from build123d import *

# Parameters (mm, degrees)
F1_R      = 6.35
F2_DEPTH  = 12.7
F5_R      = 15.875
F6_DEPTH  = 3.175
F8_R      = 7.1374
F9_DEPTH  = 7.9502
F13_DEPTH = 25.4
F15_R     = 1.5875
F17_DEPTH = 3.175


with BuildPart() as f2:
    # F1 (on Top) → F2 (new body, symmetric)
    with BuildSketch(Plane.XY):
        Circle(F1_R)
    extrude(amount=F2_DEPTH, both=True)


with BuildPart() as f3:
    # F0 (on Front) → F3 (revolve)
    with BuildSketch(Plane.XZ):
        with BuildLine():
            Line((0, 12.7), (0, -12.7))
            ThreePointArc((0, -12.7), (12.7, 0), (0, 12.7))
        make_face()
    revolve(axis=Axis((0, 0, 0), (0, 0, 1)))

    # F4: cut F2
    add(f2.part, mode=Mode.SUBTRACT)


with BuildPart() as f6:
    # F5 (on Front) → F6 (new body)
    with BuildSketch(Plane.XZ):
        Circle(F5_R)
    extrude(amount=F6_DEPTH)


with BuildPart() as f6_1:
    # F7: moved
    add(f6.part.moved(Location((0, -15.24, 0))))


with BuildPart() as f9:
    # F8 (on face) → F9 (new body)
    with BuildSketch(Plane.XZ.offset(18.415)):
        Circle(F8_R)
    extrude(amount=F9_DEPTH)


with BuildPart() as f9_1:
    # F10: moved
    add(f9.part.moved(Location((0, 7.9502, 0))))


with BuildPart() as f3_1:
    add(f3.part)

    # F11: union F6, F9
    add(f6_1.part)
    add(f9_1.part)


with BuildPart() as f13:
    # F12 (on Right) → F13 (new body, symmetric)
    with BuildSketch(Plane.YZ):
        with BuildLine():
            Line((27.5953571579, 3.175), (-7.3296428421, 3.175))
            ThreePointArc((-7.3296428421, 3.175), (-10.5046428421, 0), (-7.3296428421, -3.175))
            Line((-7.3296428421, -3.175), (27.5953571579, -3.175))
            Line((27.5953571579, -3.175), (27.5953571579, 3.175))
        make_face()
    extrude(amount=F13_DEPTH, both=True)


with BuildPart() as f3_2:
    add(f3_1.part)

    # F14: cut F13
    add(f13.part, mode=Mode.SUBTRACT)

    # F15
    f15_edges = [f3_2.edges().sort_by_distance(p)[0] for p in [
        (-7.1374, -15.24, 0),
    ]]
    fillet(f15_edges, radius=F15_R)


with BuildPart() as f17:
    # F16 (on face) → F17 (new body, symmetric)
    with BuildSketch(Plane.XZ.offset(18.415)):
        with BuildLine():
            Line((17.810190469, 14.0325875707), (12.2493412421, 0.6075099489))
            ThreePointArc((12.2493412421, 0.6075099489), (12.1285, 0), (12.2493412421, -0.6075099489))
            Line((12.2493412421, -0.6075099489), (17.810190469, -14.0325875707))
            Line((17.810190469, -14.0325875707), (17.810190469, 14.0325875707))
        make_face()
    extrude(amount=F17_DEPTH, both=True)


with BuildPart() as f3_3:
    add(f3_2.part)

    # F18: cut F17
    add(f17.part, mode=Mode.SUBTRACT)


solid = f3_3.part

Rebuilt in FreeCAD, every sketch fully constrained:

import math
import FreeCAD as App
import Part
import Sketcher

V = App.Vector
Q = App.Units.Quantity


def edges_at(feature, points):
    """Names of the edges that pass closest to the given points."""
    edges = feature.Shape.Edges
    near = lambda p: min(range(len(edges)), key=lambda i: edges[i].distToShape(Part.Vertex(*p))[0])
    return sorted({f"Edge{near(p) + 1}" for p in points})

doc = App.newDocument("Part")
body = doc.addObject("PartDesign::Body", "Body")

# Sketch on XY plane
sketch1 = body.newObject("Sketcher::SketchObject", "Sketch")
sketch1.AttachmentSupport = (doc.getObject("XY_Plane"), [""])
sketch1.MapMode = "FlatFace"
sketch1.addGeometry(Part.Circle(V(0, 0, 0), V(0, 0, 1), 6), False)
sketch1.addConstraint([
    Sketcher.Constraint("Coincident", 0, 3, -1, 1),
    Sketcher.Constraint("Diameter", 0, Q("0.5 in")),
])
pad1 = body.newObject("PartDesign::Pad", "Pad")
pad1.Profile = sketch1
pad1.Length = Q("1 in")
pad1.Midplane = True
body2 = doc.addObject("PartDesign::Body", "Body001")

# Sketch on XZ plane
sketch2 = body2.newObject("Sketcher::SketchObject", "Sketch001")
sketch2.AttachmentSupport = (doc.getObject("XZ_Plane001"), [""])
sketch2.MapMode = "FlatFace"
sketch2.addGeometry([
    Part.LineSegment(V(0, 13, 0), V(0, -13, 0)),
    Part.ArcOfCircle(Part.Circle(V(0, 0, 0), V(0, 0, 1), 13), math.radians(-90), math.radians(90)),
], False)
sketch2.addConstraint([
    Sketcher.Constraint("Coincident", 0, 1, 1, 2),
    Sketcher.Constraint("Coincident", 1, 1, 0, 2),
    Sketcher.Constraint("Vertical", 0),
    Sketcher.Constraint("Coincident", 1, 3, -1, 1),
    Sketcher.Constraint("PointOnObject", 0, 1, -2),
    Sketcher.Constraint("Radius", 1, Q("0.5 in")),
])
revolution = body2.newObject("PartDesign::Revolution", "Revolution")
revolution.Profile = sketch2
revolution.ReferenceAxis = (sketch2, ["V_Axis"])
revolution.Angle = 360
doc.recompute()

boolean = body2.newObject("PartDesign::Boolean", "Boolean")
boolean.Type = "Cut"
boolean.addObjects([body])
body3 = doc.addObject("PartDesign::Body", "Body002")

# Sketch on XZ plane
sketch3 = body3.newObject("Sketcher::SketchObject", "Sketch002")
sketch3.AttachmentSupport = (doc.getObject("XZ_Plane002"), [""])
sketch3.MapMode = "FlatFace"
sketch3.addGeometry(Part.Circle(V(0, 0, 0), V(0, 0, 1), 16), False)
sketch3.addConstraint([
    Sketcher.Constraint("Coincident", 0, 3, -1, 1),
    Sketcher.Constraint("Diameter", 0, Q("1.25 in")),
])
pad2 = body3.newObject("PartDesign::Pad", "Pad001")
pad2.Profile = sketch3
pad2.Length = Q("0.125 in")
body4 = doc.addObject("PartDesign::Body", "Body003")
doc.recompute()

body3.Placement = App.Placement(V(0, -15.24, 0), App.Rotation(V(0, 0, 1), 0))
boolean2 = body4.newObject("PartDesign::Boolean", "Boolean001")
boolean2.Type = "Fuse"
boolean2.addObjects([body3])
body5 = doc.addObject("PartDesign::Body", "Body004")

# Sketch on XZ plane
sketch4 = body5.newObject("Sketcher::SketchObject", "Sketch003")
sketch4.AttachmentSupport = (doc.getObject("XZ_Plane004"), [""])
sketch4.MapMode = "FlatFace"
sketch4.AttachmentOffset = App.Placement(V(0, 0, 0.725 * 25.4), App.Rotation())
sketch4.addGeometry(Part.Circle(V(0, 0, 0), V(0, 0, 1), 7), False)
sketch4.addConstraint([
    Sketcher.Constraint("Coincident", 0, 3, -1, 1),
    Sketcher.Constraint("Diameter", 0, Q("0.562 in")),
])
pad3 = body5.newObject("PartDesign::Pad", "Pad002")
pad3.Profile = sketch4
pad3.Length = Q("0.313 in")
body6 = doc.addObject("PartDesign::Body", "Body005")
doc.recompute()

body5.Placement = App.Placement(V(0, 7.9502, 0), App.Rotation(V(0, 0, 1), 0))
boolean3 = body6.newObject("PartDesign::Boolean", "Boolean002")
boolean3.Type = "Fuse"
boolean3.addObjects([body5])
body2.AllowCompound = True
doc.recompute()

boolean4 = body2.newObject("PartDesign::Boolean", "Boolean003")
boolean4.Type = "Fuse"
boolean4.addObjects([body4])
doc.recompute()

boolean5 = body2.newObject("PartDesign::Boolean", "Boolean004")
boolean5.Type = "Fuse"
boolean5.addObjects([body6])
body7 = doc.addObject("PartDesign::Body", "Body006")

# Sketch on YZ plane
sketch5 = body7.newObject("Sketcher::SketchObject", "Sketch004")
sketch5.AttachmentSupport = (doc.getObject("YZ_Plane006"), [""])
sketch5.MapMode = "FlatFace"
sketch5.addGeometry([
    Part.LineSegment(V(27.6, 3.2, 0), V(-7.3, 3.2, 0)),
    Part.ArcOfCircle(Part.Circle(V(-7.3, 0, 0), V(0, 0, 1), 3.2), math.radians(90), math.radians(270)),
    Part.LineSegment(V(-7.3, -3.2, 0), V(27.6, -3.2, 0)),
    Part.LineSegment(V(27.6, -3.2, 0), V(27.6, 3.2, 0)),
], False)
sketch5.addConstraint([
    Sketcher.Constraint("Tangent", 0, 2, 1, 1),
    Sketcher.Constraint("Tangent", 1, 2, 2, 1),
    Sketcher.Constraint("Coincident", 2, 2, 3, 1),
    Sketcher.Constraint("Coincident", 3, 2, 0, 1),
    Sketcher.Constraint("Horizontal", 0),
    Sketcher.Constraint("Horizontal", 2),
    Sketcher.Constraint("Vertical", 3),
    Sketcher.Constraint("PointOnObject", 1, 3, -1),
    Sketcher.Constraint("Radius", 1, Q("0.125 in")),
    Sketcher.Constraint("DistanceX", 0, 2, 0, 1, Q("1.375 in")),
    Sketcher.Constraint("DistanceX", 1, 3, -1, 1, 7.329643),
])
pad4 = body7.newObject("PartDesign::Pad", "Pad003")
pad4.Profile = sketch5
pad4.Length = Q("2 in")
pad4.Midplane = True
doc.recompute()

boolean6 = body2.newObject("PartDesign::Boolean", "Boolean005")
boolean6.Type = "Cut"
boolean6.addObjects([body7])
doc.recompute()

fillet = body2.newObject("PartDesign::Fillet", "Fillet")
fillet.Base = (boolean6, edges_at(boolean6, [(-7.137, -15.24, 0)]))
fillet.Radius = Q("0.0625 in")
body8 = doc.addObject("PartDesign::Body", "Body007")

# Sketch on XZ plane
sketch6 = body8.newObject("Sketcher::SketchObject", "Sketch005")
sketch6.AttachmentSupport = (doc.getObject("XZ_Plane007"), [""])
sketch6.MapMode = "FlatFace"
sketch6.AttachmentOffset = App.Placement(V(0, 0, 0.725 * 25.4), App.Rotation())
sketch6.addGeometry([
    Part.LineSegment(V(17.8, 14, 0), V(12.2, 0.6, 0)),
    Part.ArcOfCircle(Part.Circle(V(13.7, 0, 0), V(0, 0, 1), 1.6), math.radians(158), math.radians(202)),
    Part.LineSegment(V(12.2, -0.6, 0), V(17.8, -14, 0)),
    Part.LineSegment(V(17.8, -14, 0), V(17.8, 14, 0)),
], False)
sketch6.addConstraint([
    Sketcher.Constraint("Tangent", 0, 2, 1, 1),
    Sketcher.Constraint("Tangent", 1, 2, 2, 1),
    Sketcher.Constraint("Coincident", 2, 2, 3, 1),
    Sketcher.Constraint("Coincident", 3, 2, 0, 1),
    Sketcher.Constraint("Vertical", 3),
    Sketcher.Constraint("Symmetric", 0, 2, 1, 2, -1),
    Sketcher.Constraint("Radius", 1, Q("0.0625 in")),
    Sketcher.Constraint("Angle", 0, Q("-112.5 deg")),
    Sketcher.Constraint("DistanceX", -1, 1, 1, 3, Q("0.54 in")),
    Sketcher.Constraint("Distance", 0, 14.531199),
])
pad5 = body8.newObject("PartDesign::Pad", "Pad004")
pad5.Profile = sketch6
pad5.Length = Q("0.25 in")
pad5.Midplane = True
doc.recompute()

boolean7 = body2.newObject("PartDesign::Boolean", "Boolean006")
boolean7.Type = "Cut"
boolean7.addObjects([body8])

doc.recompute()
